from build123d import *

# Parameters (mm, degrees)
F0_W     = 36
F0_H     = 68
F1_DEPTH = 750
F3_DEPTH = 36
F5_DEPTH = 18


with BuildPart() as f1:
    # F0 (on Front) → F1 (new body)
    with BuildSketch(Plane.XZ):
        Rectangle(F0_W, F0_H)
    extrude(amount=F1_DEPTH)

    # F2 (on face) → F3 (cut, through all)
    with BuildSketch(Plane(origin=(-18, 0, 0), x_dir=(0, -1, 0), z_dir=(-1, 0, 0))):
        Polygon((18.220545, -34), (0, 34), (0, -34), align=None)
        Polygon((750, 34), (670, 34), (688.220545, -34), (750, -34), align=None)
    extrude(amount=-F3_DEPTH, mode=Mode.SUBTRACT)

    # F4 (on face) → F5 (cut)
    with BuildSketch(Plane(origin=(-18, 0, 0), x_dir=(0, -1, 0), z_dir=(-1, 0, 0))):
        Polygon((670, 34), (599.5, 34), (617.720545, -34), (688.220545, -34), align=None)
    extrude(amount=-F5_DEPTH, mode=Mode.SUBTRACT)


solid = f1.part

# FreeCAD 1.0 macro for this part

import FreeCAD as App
import Part
import Sketcher
from FreeCAD import Vector
Q = App.Units.Quantity


def add_polygon(sketch, points):
    """Adds a closed chain of lines whose ends are joined by coincident constraints."""
    first, n = sketch.GeometryCount, len(points)
    for a, b in zip(points, points[1:] + points[:1]):
        sketch.addGeometry(Part.LineSegment(App.Vector(*a, 0), App.Vector(*b, 0)), False)
    for i in range(n):
        sketch.addConstraint(Sketcher.Constraint("Coincident", first + i, 2, first + (i + 1) % n, 1))

doc = App.newDocument("Part")
body = doc.addObject("PartDesign::Body", "Body")

# Sketch on XZ plane
sketch1 = body.newObject("Sketcher::SketchObject", "Sketch")
sketch1.AttachmentSupport = (doc.getObject("XZ_Plane"), [""])
sketch1.MapMode = "FlatFace"
add_polygon(sketch1, [(-18, 34), (-18, -34), (18, -34), (18, 34)])  # lines 0-3
sketch1.addConstraint(Sketcher.Constraint("Vertical", 0))
sketch1.addConstraint(Sketcher.Constraint("Horizontal", 1))
sketch1.addConstraint(Sketcher.Constraint("Vertical", 2))
sketch1.addConstraint(Sketcher.Constraint("Horizontal", 3))
sketch1.addConstraint(Sketcher.Constraint("Symmetric", 0, 2, 2, 2, -1, 1))
sketch1.addConstraint(Sketcher.Constraint("DistanceX", 1, 1, 1, 2, Q("36 mm")))
sketch1.addConstraint(Sketcher.Constraint("DistanceY", 0, 2, 0, 1, Q("68 mm")))
pad1 = body.newObject("PartDesign::Pad", "Pad")
pad1.Profile = sketch1
pad1.Length = 750

# Sketch on YZ plane
sketch2 = body.newObject("Sketcher::SketchObject", "Sketch001")
sketch2.AttachmentSupport = (doc.getObject("YZ_Plane"), [""])
sketch2.MapMode = "FlatFace"
sketch2.AttachmentOffset = App.Placement(Vector(0, 0, -18), App.Rotation())
add_polygon(sketch2, [(-18.220545, -34), (0, 34), (0, -34)])  # lines 0-2
add_polygon(sketch2, [(-750, 34), (-670, 34), (-688.220545, -34), (-750, -34)])  # lines 3-6
sketch2.addConstraint(Sketcher.Constraint("Vertical", 1))
sketch2.addConstraint(Sketcher.Constraint("Horizontal", 2))
sketch2.addConstraint(Sketcher.Constraint("Horizontal", 3))
sketch2.addConstraint(Sketcher.Constraint("Horizontal", 5))
sketch2.addConstraint(Sketcher.Constraint("Vertical", 6))
sketch2.addConstraint(Sketcher.Constraint("Symmetric", 0, 2, 1, 2, -1, 1))
sketch2.addConstraint(Sketcher.Constraint("Parallel", 0, 4))
sketch2.addConstraint(Sketcher.Constraint("Horizontal", 0, 2, 3, 2))
sketch2.addConstraint(Sketcher.Constraint("Horizontal", 2, 2, 4, 2))
sketch2.addConstraint(Sketcher.Constraint("DistanceX", 3, 1, 3, 2, Q("80 mm")))
sketch2.addConstraint(Sketcher.Constraint("DistanceY", 1, 2, 1, 1, Q("68 mm")))
sketch2.addConstraint(Sketcher.Constraint("Angle", 0, Q("75 deg")))
sketch2.addConstraint(Sketcher.Constraint("DistanceX", 3, 2, -1, 1, Q("670 mm")))
pocket1 = body.newObject("PartDesign::Pocket", "Pocket")
pocket1.Profile = sketch2
pocket1.Type = "ThroughAll"
pocket1.Reversed = True

# Sketch on YZ plane
sketch3 = body.newObject("Sketcher::SketchObject", "Sketch002")
sketch3.AttachmentSupport = (doc.getObject("YZ_Plane"), [""])
sketch3.MapMode = "FlatFace"
sketch3.AttachmentOffset = App.Placement(Vector(0, 0, -18), App.Rotation())
add_polygon(sketch3, [(-670, 34), (-599.5, 34), (-617.720545, -34), (-688.220545, -34)])  # lines 0-3
sketch3.addConstraint(Sketcher.Constraint("Horizontal", 0))
sketch3.addConstraint(Sketcher.Constraint("Horizontal", 2))
sketch3.addConstraint(Sketcher.Constraint("Parallel", 1, 3))
sketch3.addConstraint(Sketcher.Constraint("Angle", 1, Q("-105 deg")))
sketch3.addConstraint(Sketcher.Constraint("DistanceX", 0, 1, 0, 2, Q("70.5 mm")))
sketch3.addConstraint(Sketcher.Constraint("DistanceY", -1, 1, 0, 2, Q("34 mm")))
sketch3.addConstraint(Sketcher.Constraint("DistanceY", 1, 2, -1, 1, Q("34 mm")))
sketch3.addConstraint(Sketcher.Constraint("DistanceX", 3, 2, -1, 1, Q("670 mm")))
pocket2 = body.newObject("PartDesign::Pocket", "Pocket001")
pocket2.Profile = sketch3
pocket2.Length = 18
pocket2.Reversed = True

doc.recompute()
